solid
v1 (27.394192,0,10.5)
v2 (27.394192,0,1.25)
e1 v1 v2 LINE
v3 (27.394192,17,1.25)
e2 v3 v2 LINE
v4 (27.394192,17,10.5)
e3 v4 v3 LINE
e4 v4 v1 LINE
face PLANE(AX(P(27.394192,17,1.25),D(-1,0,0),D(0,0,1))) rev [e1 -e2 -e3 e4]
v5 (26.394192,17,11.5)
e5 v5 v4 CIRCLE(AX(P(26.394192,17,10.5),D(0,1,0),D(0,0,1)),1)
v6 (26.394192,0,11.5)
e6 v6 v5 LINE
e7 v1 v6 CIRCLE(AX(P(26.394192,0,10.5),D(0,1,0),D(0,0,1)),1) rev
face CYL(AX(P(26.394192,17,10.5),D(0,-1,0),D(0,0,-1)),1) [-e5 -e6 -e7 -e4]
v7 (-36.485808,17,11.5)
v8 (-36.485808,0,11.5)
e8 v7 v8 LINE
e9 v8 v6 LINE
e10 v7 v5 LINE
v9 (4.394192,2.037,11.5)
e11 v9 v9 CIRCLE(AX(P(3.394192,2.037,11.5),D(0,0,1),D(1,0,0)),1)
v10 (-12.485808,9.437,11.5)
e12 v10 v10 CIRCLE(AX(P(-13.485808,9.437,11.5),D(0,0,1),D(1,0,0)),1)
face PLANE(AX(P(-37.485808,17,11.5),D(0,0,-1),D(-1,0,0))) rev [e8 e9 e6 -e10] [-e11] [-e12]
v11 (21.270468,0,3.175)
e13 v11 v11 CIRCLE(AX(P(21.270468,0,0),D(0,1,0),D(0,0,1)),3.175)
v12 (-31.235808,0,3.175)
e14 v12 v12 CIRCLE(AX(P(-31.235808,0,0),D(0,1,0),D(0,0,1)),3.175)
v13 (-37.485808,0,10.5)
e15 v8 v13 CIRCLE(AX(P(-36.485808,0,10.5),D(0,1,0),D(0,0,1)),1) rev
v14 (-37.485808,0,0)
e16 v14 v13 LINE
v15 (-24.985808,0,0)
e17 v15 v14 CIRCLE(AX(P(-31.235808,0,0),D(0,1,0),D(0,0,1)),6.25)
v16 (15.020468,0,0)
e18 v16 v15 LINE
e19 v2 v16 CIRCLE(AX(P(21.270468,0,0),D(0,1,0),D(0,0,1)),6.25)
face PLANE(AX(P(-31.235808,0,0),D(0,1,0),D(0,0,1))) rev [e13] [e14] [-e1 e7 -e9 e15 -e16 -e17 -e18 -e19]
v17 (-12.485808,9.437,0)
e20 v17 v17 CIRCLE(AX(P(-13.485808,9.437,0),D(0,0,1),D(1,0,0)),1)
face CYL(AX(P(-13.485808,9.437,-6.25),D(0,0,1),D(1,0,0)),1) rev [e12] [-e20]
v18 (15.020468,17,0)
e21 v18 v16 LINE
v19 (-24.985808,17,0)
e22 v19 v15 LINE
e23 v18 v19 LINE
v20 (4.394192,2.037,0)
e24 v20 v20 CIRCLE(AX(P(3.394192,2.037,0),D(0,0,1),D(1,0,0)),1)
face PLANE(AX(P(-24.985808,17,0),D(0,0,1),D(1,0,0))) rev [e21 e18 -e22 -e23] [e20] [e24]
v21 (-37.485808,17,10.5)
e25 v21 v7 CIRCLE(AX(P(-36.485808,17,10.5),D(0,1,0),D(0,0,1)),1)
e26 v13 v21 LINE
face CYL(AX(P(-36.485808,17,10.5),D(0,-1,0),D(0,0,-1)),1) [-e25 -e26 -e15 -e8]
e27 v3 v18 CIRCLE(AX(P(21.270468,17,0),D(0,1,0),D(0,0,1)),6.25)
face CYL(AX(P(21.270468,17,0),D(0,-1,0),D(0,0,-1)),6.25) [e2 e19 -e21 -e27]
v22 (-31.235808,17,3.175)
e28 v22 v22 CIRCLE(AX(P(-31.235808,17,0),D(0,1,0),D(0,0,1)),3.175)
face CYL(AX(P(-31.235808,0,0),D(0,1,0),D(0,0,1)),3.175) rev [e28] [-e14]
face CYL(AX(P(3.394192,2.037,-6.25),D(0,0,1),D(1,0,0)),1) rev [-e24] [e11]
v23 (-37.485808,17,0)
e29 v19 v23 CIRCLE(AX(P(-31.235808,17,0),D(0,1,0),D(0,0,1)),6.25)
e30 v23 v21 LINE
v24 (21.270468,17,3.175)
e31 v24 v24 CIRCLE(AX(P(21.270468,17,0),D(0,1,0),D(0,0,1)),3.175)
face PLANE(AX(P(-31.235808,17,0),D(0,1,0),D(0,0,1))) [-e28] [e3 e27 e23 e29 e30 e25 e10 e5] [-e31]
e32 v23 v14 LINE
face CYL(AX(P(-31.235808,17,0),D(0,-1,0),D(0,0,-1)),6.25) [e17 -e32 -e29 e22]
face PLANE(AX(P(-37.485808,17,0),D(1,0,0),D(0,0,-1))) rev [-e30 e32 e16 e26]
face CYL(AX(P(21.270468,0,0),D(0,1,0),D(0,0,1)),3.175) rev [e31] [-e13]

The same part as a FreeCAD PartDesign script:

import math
import FreeCAD as App
import Part
import Sketcher

V = App.Vector


def edges_at(feature, points):
    """Names of the edges that pass closest to the given points."""
    edges = feature.Shape.Edges
    near = lambda p: min(range(len(edges)), key=lambda i: edges[i].distToShape(Part.Vertex(*p))[0])
    return sorted({f"Edge{near(p) + 1}" for p in points})

doc = App.newDocument("Part")
params = doc.addObject("Spreadsheet::Sheet", "Params")
for row, (alias, value) in enumerate([
    ("sketch1_radius", "6.25 mm"),
    ("sketch1_height", "11.5 mm"),
    ("sketch1_width", "64.88 mm"),
    ("sketch1_height2", "10.25 mm"),
    ("pad1_length", "17 mm"),
    ("sketch2_diameter", "6.35 mm"),
    ("sketch3_diameter", "2 mm"),
    ("fillet_radius", "1 mm"),
], start=1):
    params.set(f"A{row}", alias)
    params.set(f"B{row}", "=" + value)
    params.setAlias(f"B{row}", alias)

body = doc.addObject("PartDesign::Body", "Body")

# Sketch on XZ plane
sketch1 = body.newObject("Sketcher::SketchObject", "Sketch")
sketch1.AttachmentSupport = (doc.getObject("XZ_Plane"), [""])
sketch1.MapMode = "FlatFace"
sketch1.addGeometry(Part.LineSegment(V(15, 0, 0), V(-25, 0, 0)), False)
sketch1.addGeometry(Part.ArcOfCircle(Part.Circle(V(-31, 0, 0), V(0, 0, 1), 6), math.radians(180), math.radians(360)), False)
sketch1.addGeometry(Part.LineSegment(V(-37, 0, 0), V(-37, 12, 0)), False)
sketch1.addGeometry(Part.LineSegment(V(-37, 12, 0), V(27, 12, 0)), False)
sketch1.addGeometry(Part.LineSegment(V(27, 12, 0), V(27, 1, 0)), False)
sketch1.addGeometry(Part.ArcOfCircle(Part.Circle(V(21, 0, 0), V(0, 0, 1), 6), math.radians(180), math.radians(372)), False)
sketch1.addConstraint(Sketcher.Constraint("Coincident", 0, 2, 1, 2))
sketch1.addConstraint(Sketcher.Constraint("Tangent", 1, 1, 2, 1))
sketch1.addConstraint(Sketcher.Constraint("Coincident", 2, 2, 3, 1))
sketch1.addConstraint(Sketcher.Constraint("Coincident", 3, 2, 4, 1))
sketch1.addConstraint(Sketcher.Constraint("Coincident", 4, 2, 5, 2))
sketch1.addConstraint(Sketcher.Constraint("Coincident", 5, 1, 0, 1))
sketch1.addConstraint(Sketcher.Constraint("Horizontal", 0))
sketch1.addConstraint(Sketcher.Constraint("Vertical", 2))
sketch1.addConstraint(Sketcher.Constraint("Horizontal", 3))
sketch1.addConstraint(Sketcher.Constraint("Vertical", 4))
sketch1.addConstraint(Sketcher.Constraint("Equal", 1, 5))
sketch1.addConstraint(Sketcher.Constraint("PointOnObject", 1, 3, -1))
sketch1.addConstraint(Sketcher.Constraint("PointOnObject", 5, 3, -1))
sketch1.addConstraint(Sketcher.Constraint("PointOnObject", 0, 2, -1))
sketch1.addConstraint(Sketcher.Constraint("Radius", 1, 6.25))
sketch1.addConstraint(Sketcher.Constraint("DistanceY", 2, 1, 2, 2, 11.5))
sketch1.addConstraint(Sketcher.Constraint("DistanceX", 3, 1, 3, 2, 64.88))
sketch1.addConstraint(Sketcher.Constraint("DistanceY", 4, 2, 4, 1, 10.25))
sketch1.addConstraint(Sketcher.Constraint("DistanceX", -1, 1, 5, 3, 21.270468))
sketch1.setExpression("Constraints[14]", "Params.sketch1_radius")
sketch1.setExpression("Constraints[15]", "Params.sketch1_height")
sketch1.setExpression("Constraints[16]", "Params.sketch1_width")
sketch1.setExpression("Constraints[17]", "Params.sketch1_height2")
pad1 = body.newObject("PartDesign::Pad", "Pad")
pad1.Profile = sketch1
pad1.setExpression("Length", "Params.pad1_length")
pad1.Reversed = True

# Sketch on XZ plane
sketch2 = body.newObject("Sketcher::SketchObject", "Sketch001")
sketch2.AttachmentSupport = (doc.getObject("XZ_Plane"), [""])
sketch2.MapMode = "FlatFace"
sketch2.AttachmentOffset = App.Placement(V(0, 0, -17), App.Rotation())
sketch2.addGeometry(Part.Circle(V(-31.2, 0, 0), V(0, 0, 1), 3.2), False)
sketch2.addGeometry(Part.Circle(V(21.3, 0, 0), V(0, 0, 1), 3.2), False)
sketch2.addConstraint(Sketcher.Constraint("Equal", 0, 1))
sketch2.addConstraint(Sketcher.Constraint("PointOnObject", 0, 3, -1))
sketch2.addConstraint(Sketcher.Constraint("PointOnObject", 1, 3, -1))
sketch2.addConstraint(Sketcher.Constraint("Diameter", 0, 6.35))
sketch2.addConstraint(Sketcher.Constraint("DistanceX", -1, 1, 1, 3, 21.270468))
sketch2.addConstraint(Sketcher.Constraint("DistanceX", 0, 3, -1, 1, 31.235808))
sketch2.setExpression("Constraints[3]", "Params.sketch2_diameter")
pocket1 = body.newObject("PartDesign::Pocket", "Pocket")
pocket1.Profile = sketch2
pocket1.Type = "ThroughAll"
pocket1.Reversed = True

# Sketch on XY plane
sketch3 = body.newObject("Sketcher::SketchObject", "Sketch002")
sketch3.AttachmentSupport = (doc.getObject("XY_Plane"), [""])
sketch3.MapMode = "FlatFace"
sketch3.AttachmentOffset = App.Placement(V(0, 0, 11.5), App.Rotation())
sketch3.addGeometry(Part.Circle(V(-13.5, 9.4, 0), V(0, 0, 1), 1), False)
sketch3.addGeometry(Part.Circle(V(3.4, 2, 0), V(0, 0, 1), 1), False)
sketch3.addConstraint(Sketcher.Constraint("Equal", 0, 1))
sketch3.addConstraint(Sketcher.Constraint("Diameter", 0, 2.0))
sketch3.addConstraint(Sketcher.Constraint("DistanceY", 1, 3, 0, 3, 7.4))
sketch3.addConstraint(Sketcher.Constraint("DistanceX", 0, 3, 1, 3, 16.88))
sketch3.addConstraint(Sketcher.Constraint("DistanceY", -1, 1, 0, 3, 9.437))
sketch3.addConstraint(Sketcher.Constraint("DistanceX", 0, 3, -1, 1, 13.485808))
sketch3.setExpression("Constraints[1]", "Params.sketch3_diameter")
pocket2 = body.newObject("PartDesign::Pocket", "Pocket001")
pocket2.Profile = sketch3
pocket2.Type = "ThroughAll"
doc.recompute()

fillet = body.newObject("PartDesign::Fillet", "Fillet")
fillet.Base = (pocket2, edges_at(pocket2, [(27.394, 8.5, 11.5), (-37.486, 8.5, 11.5)]))
fillet.setExpression("Radius", "Params.fillet_radius")

doc.recompute()
